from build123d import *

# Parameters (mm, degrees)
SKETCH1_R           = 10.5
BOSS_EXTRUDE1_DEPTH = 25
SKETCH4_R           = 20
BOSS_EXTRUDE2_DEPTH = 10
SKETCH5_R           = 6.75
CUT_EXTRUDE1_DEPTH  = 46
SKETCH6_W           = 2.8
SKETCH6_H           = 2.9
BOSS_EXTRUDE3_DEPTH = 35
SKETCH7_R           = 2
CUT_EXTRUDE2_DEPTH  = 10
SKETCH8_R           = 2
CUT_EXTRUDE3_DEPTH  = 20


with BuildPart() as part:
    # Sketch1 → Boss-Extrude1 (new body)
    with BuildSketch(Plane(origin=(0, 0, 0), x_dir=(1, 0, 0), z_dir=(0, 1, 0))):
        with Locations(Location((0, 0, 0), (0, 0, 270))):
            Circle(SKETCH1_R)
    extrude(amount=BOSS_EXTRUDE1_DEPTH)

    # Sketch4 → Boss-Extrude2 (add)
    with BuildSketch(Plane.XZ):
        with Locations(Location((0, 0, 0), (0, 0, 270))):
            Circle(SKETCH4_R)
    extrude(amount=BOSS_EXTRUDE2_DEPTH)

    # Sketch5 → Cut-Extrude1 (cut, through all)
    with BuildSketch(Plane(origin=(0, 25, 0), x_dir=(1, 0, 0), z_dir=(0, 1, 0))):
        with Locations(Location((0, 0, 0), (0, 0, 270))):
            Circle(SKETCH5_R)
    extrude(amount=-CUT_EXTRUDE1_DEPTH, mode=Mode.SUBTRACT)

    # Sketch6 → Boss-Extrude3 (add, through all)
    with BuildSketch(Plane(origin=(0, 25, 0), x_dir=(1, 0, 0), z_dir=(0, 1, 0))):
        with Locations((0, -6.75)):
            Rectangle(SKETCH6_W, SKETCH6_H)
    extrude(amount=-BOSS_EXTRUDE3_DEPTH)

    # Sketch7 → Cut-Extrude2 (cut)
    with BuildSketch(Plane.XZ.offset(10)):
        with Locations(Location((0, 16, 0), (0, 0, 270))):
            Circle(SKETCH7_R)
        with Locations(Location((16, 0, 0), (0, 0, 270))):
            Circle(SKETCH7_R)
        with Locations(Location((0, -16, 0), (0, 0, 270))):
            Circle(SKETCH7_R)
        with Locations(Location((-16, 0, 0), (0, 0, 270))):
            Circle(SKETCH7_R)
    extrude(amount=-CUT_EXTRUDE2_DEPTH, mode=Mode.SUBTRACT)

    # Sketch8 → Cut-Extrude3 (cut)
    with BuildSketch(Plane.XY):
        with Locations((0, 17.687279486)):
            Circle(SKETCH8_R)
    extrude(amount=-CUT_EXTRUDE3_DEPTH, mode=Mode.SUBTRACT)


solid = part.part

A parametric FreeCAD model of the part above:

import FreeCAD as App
import Part
import Sketcher
from FreeCAD import Vector
Q = App.Units.Quantity

doc = App.newDocument("Part")
body = doc.addObject("PartDesign::Body", "Body")

sketch1 = body.newObject("Sketcher::SketchObject", "Sketch")
sketch1.AttachmentSupport = (doc.getObject("XZ_Plane"), [""])
sketch1.MapMode = "FlatFace"
sketch1.addGeometry(Part.Circle(Vector(0, 0, 0), Vector(0, 0, 1), 10), False)
sketch1.addConstraint([
    Sketcher.Constraint("Coincident", 0, 3, -1, 1),
    Sketcher.Constraint("Diameter", 0, Q("21 mm")),
])
pad1 = body.newObject("PartDesign::Pad", "Pad")
pad1.Profile = sketch1
pad1.Length = 25
pad1.Reversed = True

sketch2 = body.newObject("Sketcher::SketchObject", "Sketch001")
sketch2.AttachmentSupport = (doc.getObject("XZ_Plane"), [""])
sketch2.MapMode = "FlatFace"
sketch2.addGeometry(Part.Circle(Vector(0, 0, 0), Vector(0, 0, 1), 20), False)
sketch2.addConstraint([
    Sketcher.Constraint("Coincident", 0, 3, -1, 1),
    Sketcher.Constraint("Diameter", 0, Q("40 mm")),
])
pad2 = body.newObject("PartDesign::Pad", "Pad001")
pad2.Profile = sketch2
pad2.Length = 10

sketch3 = body.newObject("Sketcher::SketchObject", "Sketch002")
sketch3.AttachmentSupport = (doc.getObject("XZ_Plane"), [""])
sketch3.MapMode = "FlatFace"
sketch3.AttachmentOffset = App.Placement(Vector(0, 0, -25), App.Rotation())
sketch3.addGeometry(Part.Circle(Vector(0, 0, 0), Vector(0, 0, 1), 7), False)
sketch3.addConstraint([
    Sketcher.Constraint("Coincident", 0, 3, -1, 1),
    Sketcher.Constraint("Diameter", 0, Q("13.5 mm")),
])
pocket1 = body.newObject("PartDesign::Pocket", "Pocket")
pocket1.Profile = sketch3
pocket1.Type = "ThroughAll"
pocket1.Reversed = True

sketch4 = body.newObject("Sketcher::SketchObject", "Sketch003")
sketch4.AttachmentSupport = (doc.getObject("XZ_Plane"), [""])
sketch4.MapMode = "FlatFace"
sketch4.AttachmentOffset = App.Placement(Vector(0, 0, -25), App.Rotation())
sketch4.addGeometry([
    Part.LineSegment(Vector(-1.4, 5.3, 0), Vector(-1.4, 8.2, 0)),
    Part.LineSegment(Vector(-1.4, 8.2, 0), Vector(1.4, 8.2, 0)),
    Part.LineSegment(Vector(1.4, 8.2, 0), Vector(1.4, 5.3, 0)),
    Part.LineSegment(Vector(1.4, 5.3, 0), Vector(-1.4, 5.3, 0)),
], False)
sketch4.addConstraint([
    Sketcher.Constraint("Coincident", 0, 2, 1, 1),
    Sketcher.Constraint("Coincident", 1, 2, 2, 1),
    Sketcher.Constraint("Coincident", 2, 2, 3, 1),
    Sketcher.Constraint("Coincident", 3, 2, 0, 1),
    Sketcher.Constraint("Vertical", 0),
    Sketcher.Constraint("Horizontal", 1),
    Sketcher.Constraint("Vertical", 2),
    Sketcher.Constraint("Horizontal", 3),
    Sketcher.Constraint("DistanceX", 1, 1, 1, 2, Q("2.8 mm")),
    Sketcher.Constraint("DistanceY", 0, 1, 0, 2, Q("2.9 mm")),
    Sketcher.Constraint("DistanceX", 0, 2, -1, 1, Q("1.4 mm")),
    Sketcher.Constraint("DistanceY", -1, 1, 0, 2, Q("8.2 mm")),
])
pad3 = body.newObject("PartDesign::Pad", "Pad002")
pad3.Profile = sketch4
pad3.Type = "UpToLast"

sketch5 = body.newObject("Sketcher::SketchObject", "Sketch004")
sketch5.AttachmentSupport = (doc.getObject("XZ_Plane"), [""])
sketch5.MapMode = "FlatFace"
sketch5.AttachmentOffset = App.Placement(Vector(0, 0, 10), App.Rotation())
sketch5.addGeometry([
    Part.Circle(Vector(0, 16, 0), Vector(0, 0, 1), 2),
    Part.Circle(Vector(16, 0, 0), Vector(0, 0, 1), 2),
    Part.Circle(Vector(0, -16, 0), Vector(0, 0, 1), 2),
    Part.Circle(Vector(-16, 0, 0), Vector(0, 0, 1), 2),
], False)
sketch5.addConstraint([
    Sketcher.Constraint("Equal", 0, 1),
    Sketcher.Constraint("Equal", 1, 2),
    Sketcher.Constraint("Equal", 2, 3),
    Sketcher.Constraint("Symmetric", 0, 3, 2, 3, -1, 1),
    Sketcher.Constraint("Symmetric", 1, 3, 3, 3, -1, 1),
    Sketcher.Constraint("PointOnObject", 0, 3, -2),
    Sketcher.Constraint("PointOnObject", 1, 3, -1),
    Sketcher.Constraint("Diameter", 0, Q("4 mm")),
    Sketcher.Constraint("DistanceY", -1, 1, 0, 3, Q("16 mm")),
    Sketcher.Constraint("DistanceX", -1, 1, 1, 3, Q("16 mm")),
])
pocket2 = body.newObject("PartDesign::Pocket", "Pocket001")
pocket2.Profile = sketch5
pocket2.Length = 10

sketch6 = body.newObject("Sketcher::SketchObject", "Sketch005")
sketch6.AttachmentSupport = (doc.getObject("XY_Plane"), [""])
sketch6.MapMode = "FlatFace"
sketch6.addGeometry(Part.Circle(Vector(0, 17.7, 0), Vector(0, 0, 1), 2), False)
sketch6.addConstraint([
    Sketcher.Constraint("PointOnObject", 0, 3, -2),
    Sketcher.Constraint("Diameter", 0, Q("4 mm")),
    Sketcher.Constraint("DistanceY", -1, 1, 0, 3, Q("17.687279 mm")),
])
pocket3 = body.newObject("PartDesign::Pocket", "Pocket002")
pocket3.Profile = sketch6
pocket3.Length = 20

doc.recompute()
